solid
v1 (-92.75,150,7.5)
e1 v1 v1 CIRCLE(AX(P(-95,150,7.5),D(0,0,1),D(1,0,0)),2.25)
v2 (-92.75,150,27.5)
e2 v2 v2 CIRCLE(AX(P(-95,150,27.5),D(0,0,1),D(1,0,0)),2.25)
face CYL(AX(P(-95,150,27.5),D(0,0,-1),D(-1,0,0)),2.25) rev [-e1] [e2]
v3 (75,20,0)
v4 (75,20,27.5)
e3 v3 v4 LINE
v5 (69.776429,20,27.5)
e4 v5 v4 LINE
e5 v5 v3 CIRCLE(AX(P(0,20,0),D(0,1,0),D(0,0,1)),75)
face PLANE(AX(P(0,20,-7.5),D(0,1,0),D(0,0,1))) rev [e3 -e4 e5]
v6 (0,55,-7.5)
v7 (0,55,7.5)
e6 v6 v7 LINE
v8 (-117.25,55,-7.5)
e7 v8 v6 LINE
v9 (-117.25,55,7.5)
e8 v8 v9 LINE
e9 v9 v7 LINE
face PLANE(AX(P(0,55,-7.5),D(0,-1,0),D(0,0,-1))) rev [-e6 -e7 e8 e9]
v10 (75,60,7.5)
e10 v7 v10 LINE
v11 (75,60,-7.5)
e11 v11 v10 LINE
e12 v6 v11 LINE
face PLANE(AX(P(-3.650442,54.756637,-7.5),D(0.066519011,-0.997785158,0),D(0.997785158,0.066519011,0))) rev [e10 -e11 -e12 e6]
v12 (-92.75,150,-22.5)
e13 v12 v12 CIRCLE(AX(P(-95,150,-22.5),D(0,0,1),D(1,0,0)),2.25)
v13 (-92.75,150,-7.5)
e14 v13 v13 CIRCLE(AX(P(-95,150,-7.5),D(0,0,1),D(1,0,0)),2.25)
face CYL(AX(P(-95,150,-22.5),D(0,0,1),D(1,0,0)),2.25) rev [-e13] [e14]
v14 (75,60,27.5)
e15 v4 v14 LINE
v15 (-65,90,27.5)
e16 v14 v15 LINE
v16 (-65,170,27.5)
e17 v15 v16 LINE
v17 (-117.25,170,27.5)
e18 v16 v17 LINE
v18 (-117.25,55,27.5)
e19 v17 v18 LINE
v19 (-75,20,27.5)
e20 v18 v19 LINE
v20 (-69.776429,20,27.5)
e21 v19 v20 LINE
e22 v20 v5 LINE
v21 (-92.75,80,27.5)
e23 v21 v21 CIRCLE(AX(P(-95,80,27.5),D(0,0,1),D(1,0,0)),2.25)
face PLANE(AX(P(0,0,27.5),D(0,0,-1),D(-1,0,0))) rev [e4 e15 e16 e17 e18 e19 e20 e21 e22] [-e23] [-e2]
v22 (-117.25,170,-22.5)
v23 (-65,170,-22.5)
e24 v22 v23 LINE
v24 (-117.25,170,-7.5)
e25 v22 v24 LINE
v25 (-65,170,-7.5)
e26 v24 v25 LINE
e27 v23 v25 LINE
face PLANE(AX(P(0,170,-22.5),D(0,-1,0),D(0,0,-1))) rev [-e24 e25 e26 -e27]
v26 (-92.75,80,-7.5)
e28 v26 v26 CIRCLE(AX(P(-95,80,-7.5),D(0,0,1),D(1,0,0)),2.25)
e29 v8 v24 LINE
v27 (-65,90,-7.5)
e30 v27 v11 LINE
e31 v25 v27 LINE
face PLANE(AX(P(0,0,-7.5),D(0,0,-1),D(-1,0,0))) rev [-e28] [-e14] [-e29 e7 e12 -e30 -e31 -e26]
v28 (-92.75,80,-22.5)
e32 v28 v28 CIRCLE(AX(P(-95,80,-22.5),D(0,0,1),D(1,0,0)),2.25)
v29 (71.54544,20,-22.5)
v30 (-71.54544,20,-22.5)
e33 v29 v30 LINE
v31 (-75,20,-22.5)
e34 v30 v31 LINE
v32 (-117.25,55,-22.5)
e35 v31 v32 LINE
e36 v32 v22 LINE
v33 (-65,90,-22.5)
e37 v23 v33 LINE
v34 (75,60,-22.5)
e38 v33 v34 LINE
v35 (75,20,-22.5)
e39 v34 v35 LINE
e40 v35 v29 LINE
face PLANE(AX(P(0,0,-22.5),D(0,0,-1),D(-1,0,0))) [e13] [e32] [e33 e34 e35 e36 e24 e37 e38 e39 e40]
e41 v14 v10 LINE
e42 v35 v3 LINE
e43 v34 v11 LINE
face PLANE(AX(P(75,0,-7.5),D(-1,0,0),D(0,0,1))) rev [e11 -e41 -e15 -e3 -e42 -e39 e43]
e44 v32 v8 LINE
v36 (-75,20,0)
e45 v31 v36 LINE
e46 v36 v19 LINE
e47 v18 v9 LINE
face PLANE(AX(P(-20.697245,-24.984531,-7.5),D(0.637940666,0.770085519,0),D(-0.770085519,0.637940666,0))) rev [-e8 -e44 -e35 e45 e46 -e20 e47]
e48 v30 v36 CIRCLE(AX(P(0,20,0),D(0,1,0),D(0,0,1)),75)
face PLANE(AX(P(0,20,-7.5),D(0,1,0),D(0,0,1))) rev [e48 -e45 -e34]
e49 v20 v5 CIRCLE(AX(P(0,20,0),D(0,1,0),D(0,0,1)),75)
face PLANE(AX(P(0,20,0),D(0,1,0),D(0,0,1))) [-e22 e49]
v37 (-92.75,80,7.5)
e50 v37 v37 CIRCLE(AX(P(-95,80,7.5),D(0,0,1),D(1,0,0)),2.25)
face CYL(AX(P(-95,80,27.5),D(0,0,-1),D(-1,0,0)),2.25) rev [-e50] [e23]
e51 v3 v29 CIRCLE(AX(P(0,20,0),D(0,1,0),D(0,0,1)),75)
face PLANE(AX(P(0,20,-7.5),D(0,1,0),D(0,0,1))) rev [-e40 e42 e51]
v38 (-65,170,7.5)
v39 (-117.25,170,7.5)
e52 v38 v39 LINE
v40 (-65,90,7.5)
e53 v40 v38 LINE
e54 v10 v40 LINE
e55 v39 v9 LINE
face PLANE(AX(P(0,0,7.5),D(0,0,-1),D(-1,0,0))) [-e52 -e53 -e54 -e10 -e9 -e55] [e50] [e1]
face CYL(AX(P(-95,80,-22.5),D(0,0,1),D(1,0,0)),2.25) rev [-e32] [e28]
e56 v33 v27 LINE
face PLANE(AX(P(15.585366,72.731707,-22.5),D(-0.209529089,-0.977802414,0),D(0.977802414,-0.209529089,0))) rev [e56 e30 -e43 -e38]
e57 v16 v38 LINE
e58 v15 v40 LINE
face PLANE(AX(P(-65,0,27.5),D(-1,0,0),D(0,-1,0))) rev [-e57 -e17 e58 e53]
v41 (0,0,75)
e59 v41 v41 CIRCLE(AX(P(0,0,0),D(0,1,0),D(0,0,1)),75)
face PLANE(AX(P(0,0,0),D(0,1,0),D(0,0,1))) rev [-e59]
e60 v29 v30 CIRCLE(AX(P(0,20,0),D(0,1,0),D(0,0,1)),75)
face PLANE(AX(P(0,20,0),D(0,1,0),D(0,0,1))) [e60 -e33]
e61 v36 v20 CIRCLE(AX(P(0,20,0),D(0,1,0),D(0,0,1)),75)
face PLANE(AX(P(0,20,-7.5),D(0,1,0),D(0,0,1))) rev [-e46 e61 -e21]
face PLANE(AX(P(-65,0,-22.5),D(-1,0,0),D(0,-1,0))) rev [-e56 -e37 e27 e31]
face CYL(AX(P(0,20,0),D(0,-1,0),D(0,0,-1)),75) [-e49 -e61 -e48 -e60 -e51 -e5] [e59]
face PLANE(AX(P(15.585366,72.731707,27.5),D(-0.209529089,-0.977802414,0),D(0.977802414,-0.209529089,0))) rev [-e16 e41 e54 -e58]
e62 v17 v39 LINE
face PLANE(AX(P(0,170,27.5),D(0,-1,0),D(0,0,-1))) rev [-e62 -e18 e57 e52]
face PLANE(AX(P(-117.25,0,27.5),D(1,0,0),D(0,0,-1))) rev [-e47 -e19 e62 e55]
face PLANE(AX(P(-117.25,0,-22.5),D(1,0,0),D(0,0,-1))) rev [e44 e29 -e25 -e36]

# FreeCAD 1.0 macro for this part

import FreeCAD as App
import Part
import Sketcher

V = App.Vector

doc = App.newDocument("Part")
body = doc.addObject("PartDesign::Body", "Body")

# Sketch on XZ plane
sketch1 = body.newObject("Sketcher::SketchObject", "Sketch")
sketch1.AttachmentSupport = (doc.getObject("XZ_Plane"), [""])
sketch1.MapMode = "FlatFace"
sketch1.addGeometry(Part.Circle(V(0, 0, 0), V(0, 0, 1), 75), False)
sketch1.addConstraint([
    Sketcher.Constraint("Coincident", 0, 3, -1, 1),
    Sketcher.Constraint("Diameter", 0, 150.0),
])
pad1 = body.newObject("PartDesign::Pad", "Pad")
pad1.Profile = sketch1
pad1.Length = 20
pad1.Reversed = True

# Sketch on XY plane
sketch2 = body.newObject("Sketcher::SketchObject", "Sketch001")
sketch2.AttachmentSupport = (doc.getObject("XY_Plane"), [""])
sketch2.MapMode = "FlatFace"
sketch2.addGeometry([
    Part.LineSegment(V(-75, 20, 0), V(75, 20, 0)),  # 0
    Part.LineSegment(V(75, 20, 0), V(75, 60, 0)),  # 1
    Part.LineSegment(V(75, 60, 0), V(0, 55, 0)),  # 2
    Part.LineSegment(V(0, 55, 0), V(-117, 55, 0)),  # 3
    Part.LineSegment(V(-117, 55, 0), V(-75, 20, 0)),  # 4
], False)
sketch2.addConstraint([
    Sketcher.Constraint("Coincident", 0, 2, 1, 1),
    Sketcher.Constraint("Coincident", 1, 2, 2, 1),
    Sketcher.Constraint("Coincident", 2, 2, 3, 1),
    Sketcher.Constraint("Coincident", 3, 2, 4, 1),
    Sketcher.Constraint("Coincident", 4, 2, 0, 1),
    Sketcher.Constraint("Horizontal", 0),
    Sketcher.Constraint("Vertical", 1),
    Sketcher.Constraint("Horizontal", 3),
    Sketcher.Constraint("PointOnObject", 2, 2, -2),
    Sketcher.Constraint("DistanceX", 0, 1, 0, 2, 150.0),
    Sketcher.Constraint("DistanceY", 1, 1, 1, 2, 40.0),
    Sketcher.Constraint("DistanceX", -1, 1, 0, 2, 75.0),
    Sketcher.Constraint("DistanceY", -1, 1, 0, 2, 20.0),
    Sketcher.Constraint("DistanceY", -1, 1, 2, 2, 55.0),
    Sketcher.Constraint("DistanceX", 3, 2, 3, 1, 117.25),
])
pad2 = body.newObject("PartDesign::Pad", "Pad001")
pad2.Profile = sketch2
pad2.Length = 15
pad2.Midplane = True

# Sketch on XY plane
sketch3 = body.newObject("Sketcher::SketchObject", "Sketch002")
sketch3.AttachmentSupport = (doc.getObject("XY_Plane"), [""])
sketch3.MapMode = "FlatFace"
sketch3.AttachmentOffset = App.Placement(V(0, 0, 7.5), App.Rotation())
sketch3.addGeometry([
    Part.LineSegment(V(-75, 20, 0), V(75, 20, 0)),  # 0
    Part.LineSegment(V(75, 20, 0), V(75, 60, 0)),  # 1
    Part.LineSegment(V(75, 60, 0), V(-65, 90, 0)),  # 2
    Part.LineSegment(V(-65, 90, 0), V(-65, 170, 0)),  # 3
    Part.LineSegment(V(-65, 170, 0), V(-117.2, 170, 0)),  # 4
    Part.LineSegment(V(-117.2, 170, 0), V(-117.2, 55, 0)),  # 5
    Part.LineSegment(V(-117.2, 55, 0), V(-75, 20, 0)),  # 6
    Part.Circle(V(-95, 150, 0), V(0, 0, 1), 2.2),  # 7
    Part.Circle(V(-95, 80, 0), V(0, 0, 1), 2.2),  # 8
], False)
sketch3.addConstraint([
    Sketcher.Constraint("Coincident", 0, 2, 1, 1),
    Sketcher.Constraint("Coincident", 1, 2, 2, 1),
    Sketcher.Constraint("Coincident", 2, 2, 3, 1),
    Sketcher.Constraint("Coincident", 3, 2, 4, 1),
    Sketcher.Constraint("Coincident", 4, 2, 5, 1),
    Sketcher.Constraint("Coincident", 5, 2, 6, 1),
    Sketcher.Constraint("Coincident", 6, 2, 0, 1),
    Sketcher.Constraint("Horizontal", 0),
    Sketcher.Constraint("Vertical", 1),
    Sketcher.Constraint("Vertical", 3),
    Sketcher.Constraint("Horizontal", 4),
    Sketcher.Constraint("Vertical", 5),
    Sketcher.Constraint("Equal", 7, 8),
    Sketcher.Constraint("Vertical", 7, 3, 8, 3),
    Sketcher.Constraint("Diameter", 7, 4.5),
    Sketcher.Constraint("DistanceX", 0, 1, 0, 2, 150.0),
    Sketcher.Constraint("DistanceY", 1, 1, 1, 2, 40.0),
    Sketcher.Constraint("DistanceY", 3, 1, 3, 2, 80.0),
    Sketcher.Constraint("DistanceY", 5, 2, 5, 1, 115.0),
    Sketcher.Constraint("DistanceX", 7, 3, -1, 1, 95.0),
    Sketcher.Constraint("DistanceY", -1, 1, 7, 3, 150.0),
    Sketcher.Constraint("DistanceY", -1, 1, 8, 3, 80.0),
    Sketcher.Constraint("DistanceX", -1, 1, 0, 2, 75.0),
    Sketcher.Constraint("DistanceY", -1, 1, 0, 2, 20.0),
    Sketcher.Constraint("DistanceX", 2, 2, -1, 1, 65.0),
    Sketcher.Constraint("DistanceY", -1, 1, 2, 2, 90.0),
    Sketcher.Constraint("DistanceX", 4, 2, 4, 1, 52.25),
])
pad3 = body.newObject("PartDesign::Pad", "Pad002")
pad3.Profile = sketch3
pad3.Length = 20

# Sketch on XY plane
sketch4 = body.newObject("Sketcher::SketchObject", "Sketch003")
sketch4.AttachmentSupport = (doc.getObject("XY_Plane"), [""])
sketch4.MapMode = "FlatFace"
sketch4.AttachmentOffset = App.Placement(V(0, 0, -22.5), App.Rotation())
sketch4.addGeometry([
    Part.LineSegment(V(-75, 20, 0), V(75, 20, 0)),  # 0
    Part.LineSegment(V(75, 20, 0), V(75, 60, 0)),  # 1
    Part.LineSegment(V(75, 60, 0), V(-65, 90, 0)),  # 2
    Part.LineSegment(V(-65, 90, 0), V(-65, 170, 0)),  # 3
    Part.LineSegment(V(-65, 170, 0), V(-117.2, 170, 0)),  # 4
    Part.LineSegment(V(-117.2, 170, 0), V(-117.2, 55, 0)),  # 5
    Part.LineSegment(V(-117.2, 55, 0), V(-75, 20, 0)),  # 6
    Part.Circle(V(-95, 80, 0), V(0, 0, 1), 2.2),  # 7
    Part.Circle(V(-95, 150, 0), V(0, 0, 1), 2.2),  # 8
], False)
sketch4.addConstraint([
    Sketcher.Constraint("Coincident", 0, 2, 1, 1),
    Sketcher.Constraint("Coincident", 1, 2, 2, 1),
    Sketcher.Constraint("Coincident", 2, 2, 3, 1),
    Sketcher.Constraint("Coincident", 3, 2, 4, 1),
    Sketcher.Constraint("Coincident", 4, 2, 5, 1),
    Sketcher.Constraint("Coincident", 5, 2, 6, 1),
    Sketcher.Constraint("Coincident", 6, 2, 0, 1),
    Sketcher.Constraint("Horizontal", 0),
    Sketcher.Constraint("Vertical", 1),
    Sketcher.Constraint("Vertical", 3),
    Sketcher.Constraint("Horizontal", 4),
    Sketcher.Constraint("Vertical", 5),
    Sketcher.Constraint("Equal", 7, 8),
    Sketcher.Constraint("Vertical", 7, 3, 8, 3),
    Sketcher.Constraint("Diameter", 7, 4.5),
    Sketcher.Constraint("DistanceX", 0, 1, 0, 2, 150.0),
    Sketcher.Constraint("DistanceY", 1, 1, 1, 2, 40.0),
    Sketcher.Constraint("DistanceY", 3, 1, 3, 2, 80.0),
    Sketcher.Constraint("DistanceY", 5, 2, 5, 1, 115.0),
    Sketcher.Constraint("DistanceX", 7, 3, -1, 1, 95.0),
    Sketcher.Constraint("DistanceY", -1, 1, 7, 3, 80.0),
    Sketcher.Constraint("DistanceY", -1, 1, 8, 3, 150.0),
    Sketcher.Constraint("DistanceX", -1, 1, 0, 2, 75.0),
    Sketcher.Constraint("DistanceY", -1, 1, 0, 2, 20.0),
    Sketcher.Constraint("DistanceX", 2, 2, -1, 1, 65.0),
    Sketcher.Constraint("DistanceY", -1, 1, 2, 2, 90.0),
    Sketcher.Constraint("DistanceX", 4, 2, 4, 1, 52.25),
])
pad4 = body.newObject("PartDesign::Pad", "Pad003")
pad4.Profile = sketch4
pad4.Length = 15

doc.recompute()
